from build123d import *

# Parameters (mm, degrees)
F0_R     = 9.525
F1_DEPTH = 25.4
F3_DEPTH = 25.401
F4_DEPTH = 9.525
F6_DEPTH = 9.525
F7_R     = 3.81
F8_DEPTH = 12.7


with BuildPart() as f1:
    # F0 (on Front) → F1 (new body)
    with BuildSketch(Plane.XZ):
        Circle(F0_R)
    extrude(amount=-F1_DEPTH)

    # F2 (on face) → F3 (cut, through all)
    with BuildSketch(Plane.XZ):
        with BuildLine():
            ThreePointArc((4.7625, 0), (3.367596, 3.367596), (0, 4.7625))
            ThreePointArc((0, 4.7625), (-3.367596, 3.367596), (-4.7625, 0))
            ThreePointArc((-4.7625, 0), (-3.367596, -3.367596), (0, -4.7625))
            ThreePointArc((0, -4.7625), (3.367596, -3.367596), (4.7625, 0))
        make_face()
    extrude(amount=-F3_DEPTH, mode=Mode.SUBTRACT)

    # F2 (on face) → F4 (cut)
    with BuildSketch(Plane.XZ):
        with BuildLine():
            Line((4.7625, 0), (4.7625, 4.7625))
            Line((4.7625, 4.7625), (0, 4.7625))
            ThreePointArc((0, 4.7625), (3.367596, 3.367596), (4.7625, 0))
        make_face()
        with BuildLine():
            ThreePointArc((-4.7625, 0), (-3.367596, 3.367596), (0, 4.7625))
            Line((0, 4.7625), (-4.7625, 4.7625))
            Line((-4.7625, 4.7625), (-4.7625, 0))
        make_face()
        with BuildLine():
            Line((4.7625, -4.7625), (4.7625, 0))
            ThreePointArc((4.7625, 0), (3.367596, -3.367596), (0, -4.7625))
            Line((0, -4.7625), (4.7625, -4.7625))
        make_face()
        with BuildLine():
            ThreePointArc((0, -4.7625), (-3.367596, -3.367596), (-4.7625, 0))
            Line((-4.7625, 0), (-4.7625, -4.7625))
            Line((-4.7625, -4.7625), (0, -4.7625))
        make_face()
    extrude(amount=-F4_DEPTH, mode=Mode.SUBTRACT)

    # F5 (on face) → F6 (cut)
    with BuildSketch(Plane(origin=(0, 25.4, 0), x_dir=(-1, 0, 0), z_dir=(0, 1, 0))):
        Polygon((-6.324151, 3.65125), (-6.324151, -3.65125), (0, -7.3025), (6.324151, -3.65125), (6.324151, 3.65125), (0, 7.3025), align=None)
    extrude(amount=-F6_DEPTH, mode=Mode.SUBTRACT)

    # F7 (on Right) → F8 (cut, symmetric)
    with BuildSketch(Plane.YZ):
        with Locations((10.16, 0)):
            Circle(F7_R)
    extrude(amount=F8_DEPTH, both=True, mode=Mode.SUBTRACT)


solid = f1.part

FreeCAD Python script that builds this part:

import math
import FreeCAD as App
import Part
import Sketcher
Q = App.Units.Quantity

doc = App.newDocument("Part")
body = doc.addObject("PartDesign::Body", "Body")

# Sketch on XZ plane
sketch1 = body.newObject("Sketcher::SketchObject", "Sketch")
sketch1.AttachmentSupport = (doc.getObject("XZ_Plane"), [""])
sketch1.MapMode = "FlatFace"
sketch1.addGeometry(Part.Circle(App.Vector(0, 0, 0), App.Vector(0, 0, 1), 10), False)
sketch1.addConstraint([
    Sketcher.Constraint("Coincident", 0, 3, -1, 1),
    Sketcher.Constraint("Diameter", 0, Q("0.75 in")),
])
pad1 = body.newObject("PartDesign::Pad", "Pad")
pad1.Profile = sketch1
pad1.Length = Q("1 in")
pad1.Reversed = True

# Sketch on XZ plane
sketch2 = body.newObject("Sketcher::SketchObject", "Sketch001")
sketch2.AttachmentSupport = (doc.getObject("XZ_Plane"), [""])
sketch2.MapMode = "FlatFace"
sketch2.addGeometry([
    Part.ArcOfCircle(Part.Circle(App.Vector(0, 0, 0), App.Vector(0, 0, 1), 4.8), math.radians(0), math.radians(90)),
    Part.ArcOfCircle(Part.Circle(App.Vector(0, 0, 0), App.Vector(0, 0, 1), 4.8), math.radians(90), math.radians(180)),
    Part.ArcOfCircle(Part.Circle(App.Vector(0, 0, 0), App.Vector(0, 0, 1), 4.8), math.radians(-180), math.radians(-90)),
    Part.ArcOfCircle(Part.Circle(App.Vector(0, 0, 0), App.Vector(0, 0, 1), 4.8), math.radians(-90), math.radians(0)),
], False)
sketch2.addConstraint([
    Sketcher.Constraint("Tangent", 0, 2, 1, 1),
    Sketcher.Constraint("Tangent", 1, 2, 2, 1),
    Sketcher.Constraint("Tangent", 2, 2, 3, 1),
    Sketcher.Constraint("Tangent", 3, 2, 0, 1),
    Sketcher.Constraint("Coincident", 0, 3, -1, 1),
    Sketcher.Constraint("Equal", 0, 1),
    Sketcher.Constraint("PointOnObject", 0, 2, -2),
    Sketcher.Constraint("PointOnObject", 1, 2, -1),
    Sketcher.Constraint("PointOnObject", 2, 2, -2),
    Sketcher.Constraint("PointOnObject", 3, 2, -1),
    Sketcher.Constraint("Radius", 0, Q("0.1875 in")),
])
pocket1 = body.newObject("PartDesign::Pocket", "Pocket")
pocket1.Profile = sketch2
pocket1.Type = "ThroughAll"

# Sketch on XZ plane
sketch3 = body.newObject("Sketcher::SketchObject", "Sketch002")
sketch3.AttachmentSupport = (doc.getObject("XZ_Plane"), [""])
sketch3.MapMode = "FlatFace"
sketch3.addGeometry([
    Part.LineSegment(App.Vector(4.8, 0, 0), App.Vector(4.8, 4.8, 0)),  # 0
    Part.LineSegment(App.Vector(4.8, 4.8, 0), App.Vector(0, 4.8, 0)),  # 1
    Part.ArcOfCircle(Part.Circle(App.Vector(0, 0, 0), App.Vector(0, 0, 1), 4.8), math.radians(0), math.radians(90)),  # 2
    Part.ArcOfCircle(Part.Circle(App.Vector(0, 0, 0), App.Vector(0, 0, 1), 4.8), math.radians(90), math.radians(180)),  # 3
    Part.LineSegment(App.Vector(0, 4.8, 0), App.Vector(-4.8, 4.8, 0)),  # 4
    Part.LineSegment(App.Vector(-4.8, 4.8, 0), App.Vector(-4.8, 0, 0)),  # 5
    Part.LineSegment(App.Vector(4.8, -4.8, 0), App.Vector(4.8, 0, 0)),  # 6
    Part.ArcOfCircle(Part.Circle(App.Vector(0, 0, 0), App.Vector(0, 0, 1), 4.8), math.radians(-90), math.radians(0)),  # 7
    Part.LineSegment(App.Vector(0, -4.8, 0), App.Vector(4.8, -4.8, 0)),  # 8
    Part.ArcOfCircle(Part.Circle(App.Vector(0, 0, 0), App.Vector(0, 0, 1), 4.8), math.radians(-180), math.radians(-90)),  # 9
    Part.LineSegment(App.Vector(-4.8, 0, 0), App.Vector(-4.8, -4.8, 0)),  # 10
    Part.LineSegment(App.Vector(-4.8, -4.8, 0), App.Vector(0, -4.8, 0)),  # 11
], False)
sketch3.addConstraint([
    Sketcher.Constraint("Coincident", 0, 2, 1, 1),
    Sketcher.Constraint("Tangent", 1, 2, 2, 2),
    Sketcher.Constraint("Tangent", 2, 1, 0, 1),
    Sketcher.Constraint("Tangent", 3, 1, 4, 1),
    Sketcher.Constraint("Coincident", 4, 2, 5, 1),
    Sketcher.Constraint("Tangent", 5, 2, 3, 2),
    Sketcher.Constraint("Tangent", 6, 2, 7, 2),
    Sketcher.Constraint("Tangent", 7, 1, 8, 1),
    Sketcher.Constraint("Coincident", 8, 2, 6, 1),
    Sketcher.Constraint("Tangent", 9, 1, 10, 1),
    Sketcher.Constraint("Coincident", 10, 2, 11, 1),
    Sketcher.Constraint("Tangent", 11, 2, 9, 2),
    Sketcher.Constraint("Vertical", 0),
    Sketcher.Constraint("Horizontal", 1),
    Sketcher.Constraint("Horizontal", 4),
    Sketcher.Constraint("Vertical", 5),
    Sketcher.Constraint("Vertical", 6),
    Sketcher.Constraint("Horizontal", 8),
    Sketcher.Constraint("Vertical", 10),
    Sketcher.Constraint("Horizontal", 11),
    Sketcher.Constraint("Coincident", 2, 3, -1, 1),
    Sketcher.Constraint("Coincident", 3, 3, -1, 1),
    Sketcher.Constraint("Coincident", 7, 3, -1, 1),
    Sketcher.Constraint("Coincident", 9, 3, -1, 1),
    Sketcher.Constraint("Equal", 2, 3),
    Sketcher.Constraint("Equal", 3, 7),
    Sketcher.Constraint("Equal", 7, 9),
    Sketcher.Constraint("Radius", 2, Q("0.1875 in")),
])
pocket2 = body.newObject("PartDesign::Pocket", "Pocket001")
pocket2.Profile = sketch3
pocket2.Length = Q("0.375 in")

# Sketch on XZ plane
sketch4 = body.newObject("Sketcher::SketchObject", "Sketch003")
sketch4.AttachmentSupport = (doc.getObject("XZ_Plane"), [""])
sketch4.MapMode = "FlatFace"
sketch4.AttachmentOffset = App.Placement(App.Vector(0, 0, -1 * 25.4), App.Rotation())
sketch4.addGeometry([
    Part.LineSegment(App.Vector(6, 4, 0), App.Vector(6, -4, 0)),  # 0
    Part.LineSegment(App.Vector(6, -4, 0), App.Vector(0, -7, 0)),  # 1
    Part.LineSegment(App.Vector(0, -7, 0), App.Vector(-6, -4, 0)),  # 2
    Part.LineSegment(App.Vector(-6, -4, 0), App.Vector(-6, 4, 0)),  # 3
    Part.LineSegment(App.Vector(-6, 4, 0), App.Vector(0, 7, 0)),  # 4
    Part.LineSegment(App.Vector(0, 7, 0), App.Vector(6, 4, 0)),  # 5
], False)
sketch4.addConstraint([
    Sketcher.Constraint("Coincident", 0, 2, 1, 1),
    Sketcher.Constraint("Coincident", 1, 2, 2, 1),
    Sketcher.Constraint("Coincident", 2, 2, 3, 1),
    Sketcher.Constraint("Coincident", 3, 2, 4, 1),
    Sketcher.Constraint("Coincident", 4, 2, 5, 1),
    Sketcher.Constraint("Coincident", 5, 2, 0, 1),
    Sketcher.Constraint("Vertical", 0),
    Sketcher.Constraint("Vertical", 3),
    Sketcher.Constraint("Symmetric", 0, 2, 3, 2, -1, 1),
    Sketcher.Constraint("Symmetric", 1, 2, 4, 2, -1, 1),
    Sketcher.Constraint("PointOnObject", 1, 2, -2),
    Sketcher.Constraint("Parallel", 2, 5),
    Sketcher.Constraint("Horizontal", 0, 2, 2, 2),
    Sketcher.Constraint("Angle", 1, Q("-150.000002 deg")),
    Sketcher.Constraint("DistanceY", 0, 2, 0, 1, Q("0.2875 in")),
    Sketcher.Constraint("DistanceY", 1, 2, 4, 2, Q("0.575 in")),
])
pocket3 = body.newObject("PartDesign::Pocket", "Pocket002")
pocket3.Profile = sketch4
pocket3.Length = Q("0.375 in")
pocket3.Reversed = True

# Sketch on YZ plane
sketch5 = body.newObject("Sketcher::SketchObject", "Sketch004")
sketch5.AttachmentSupport = (doc.getObject("YZ_Plane"), [""])
sketch5.MapMode = "FlatFace"
sketch5.addGeometry(Part.Circle(App.Vector(10.2, 0, 0), App.Vector(0, 0, 1), 3.8), False)
sketch5.addConstraint([
    Sketcher.Constraint("PointOnObject", 0, 3, -1),
    Sketcher.Constraint("Diameter", 0, Q("0.3 in")),
    Sketcher.Constraint("DistanceX", -1, 1, 0, 3, Q("0.4 in")),
])
pocket4 = body.newObject("PartDesign::Pocket", "Pocket003")
pocket4.Profile = sketch5
pocket4.Length = Q("1 in")
pocket4.Midplane = True

doc.recompute()
